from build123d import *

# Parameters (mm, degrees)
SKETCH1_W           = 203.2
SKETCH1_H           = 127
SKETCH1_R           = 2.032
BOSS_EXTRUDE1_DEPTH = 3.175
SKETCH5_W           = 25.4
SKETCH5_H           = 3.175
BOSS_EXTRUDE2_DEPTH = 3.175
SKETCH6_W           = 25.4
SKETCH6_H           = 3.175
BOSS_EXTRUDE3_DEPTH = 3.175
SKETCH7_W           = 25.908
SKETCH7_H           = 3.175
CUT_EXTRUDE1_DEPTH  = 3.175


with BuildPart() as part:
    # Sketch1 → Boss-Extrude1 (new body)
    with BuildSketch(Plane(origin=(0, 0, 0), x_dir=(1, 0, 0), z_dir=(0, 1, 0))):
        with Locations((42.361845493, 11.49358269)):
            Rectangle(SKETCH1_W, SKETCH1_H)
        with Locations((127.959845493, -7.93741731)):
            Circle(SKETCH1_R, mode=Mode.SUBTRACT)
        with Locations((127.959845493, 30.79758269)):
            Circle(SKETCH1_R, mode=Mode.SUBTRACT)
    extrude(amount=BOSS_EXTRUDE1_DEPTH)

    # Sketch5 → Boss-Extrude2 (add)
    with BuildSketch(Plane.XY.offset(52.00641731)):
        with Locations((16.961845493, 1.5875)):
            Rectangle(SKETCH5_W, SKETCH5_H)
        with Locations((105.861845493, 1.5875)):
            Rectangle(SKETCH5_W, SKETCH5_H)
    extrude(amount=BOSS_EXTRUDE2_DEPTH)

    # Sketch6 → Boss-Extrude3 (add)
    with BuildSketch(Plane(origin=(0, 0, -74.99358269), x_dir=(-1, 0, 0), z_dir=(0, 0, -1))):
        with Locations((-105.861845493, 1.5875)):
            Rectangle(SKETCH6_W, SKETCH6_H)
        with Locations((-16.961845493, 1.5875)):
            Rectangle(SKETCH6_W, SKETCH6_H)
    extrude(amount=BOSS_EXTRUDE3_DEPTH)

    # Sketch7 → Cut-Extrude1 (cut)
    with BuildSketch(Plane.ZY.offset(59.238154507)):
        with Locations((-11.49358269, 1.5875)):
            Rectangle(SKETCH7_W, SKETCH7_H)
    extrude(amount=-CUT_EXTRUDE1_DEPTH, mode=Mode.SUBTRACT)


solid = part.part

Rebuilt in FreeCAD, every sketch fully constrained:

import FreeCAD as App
import Part
import Sketcher

V = App.Vector
Q = App.Units.Quantity


def add_polygon(sketch, points):
    """Adds a closed chain of lines whose ends are joined by coincident constraints."""
    first, n = sketch.GeometryCount, len(points)
    for a, b in zip(points, points[1:] + points[:1]):
        sketch.addGeometry(Part.LineSegment(App.Vector(*a, 0), App.Vector(*b, 0)), False)
    for i in range(n):
        sketch.addConstraint(Sketcher.Constraint("Coincident", first + i, 2, first + (i + 1) % n, 1))

doc = App.newDocument("Part")
body = doc.addObject("PartDesign::Body", "Body")

# Sketch on XZ plane
sketch1 = body.newObject("Sketcher::SketchObject", "Sketch")
sketch1.AttachmentSupport = (doc.getObject("XZ_Plane"), [""])
sketch1.MapMode = "FlatFace"
add_polygon(sketch1, [(-59.2, -75), (-59.2, 52), (144, 52), (144, -75)])  # lines 0-3
sketch1.addGeometry(Part.Circle(V(128, 7.9, 0), V(0, 0, 1), 2), False)  # 4
sketch1.addGeometry(Part.Circle(V(128, -30.8, 0), V(0, 0, 1), 2), False)  # 5
sketch1.addConstraint(Sketcher.Constraint("Vertical", 0))
sketch1.addConstraint(Sketcher.Constraint("Horizontal", 1))
sketch1.addConstraint(Sketcher.Constraint("Vertical", 2))
sketch1.addConstraint(Sketcher.Constraint("Horizontal", 3))
sketch1.addConstraint(Sketcher.Constraint("Equal", 4, 5))
sketch1.addConstraint(Sketcher.Constraint("Vertical", 4, 3, 5, 3))
sketch1.addConstraint(Sketcher.Constraint("Diameter", 4, Q("0.16 in")))
sketch1.addConstraint(Sketcher.Constraint("DistanceX", 1, 1, 1, 2, Q("8 in")))
sketch1.addConstraint(Sketcher.Constraint("DistanceY", 0, 1, 0, 2, Q("5 in")))
sketch1.addConstraint(Sketcher.Constraint("DistanceX", 0, 2, 4, 3, Q("7.37 in")))
sketch1.addConstraint(Sketcher.Constraint("DistanceY", 5, 3, 0, 2, Q("3.26 in")))
sketch1.addConstraint(Sketcher.Constraint("DistanceY", 5, 3, 4, 3, Q("1.525 in")))
sketch1.addConstraint(Sketcher.Constraint("DistanceX", -1, 1, 4, 3, 127.959845))
sketch1.addConstraint(Sketcher.Constraint("DistanceY", -1, 1, 4, 3, 7.937417))
pad1 = body.newObject("PartDesign::Pad", "Pad")
pad1.Profile = sketch1
pad1.Length = Q("0.125 in")
pad1.Reversed = True

# Sketch on XY plane
sketch2 = body.newObject("Sketcher::SketchObject", "Sketch001")
sketch2.AttachmentSupport = (doc.getObject("XY_Plane"), [""])
sketch2.MapMode = "FlatFace"
sketch2.AttachmentOffset = App.Placement(V(0, 0, 52.006417), App.Rotation())
add_polygon(sketch2, [(4.3, 3.2), (4.3, 0), (29.7, 0), (29.7, 3.2)])  # lines 0-3
add_polygon(sketch2, [(93.2, 3.2), (93.2, 0), (118.6, 0), (118.6, 3.2)])  # lines 4-7
sketch2.addConstraint(Sketcher.Constraint("Vertical", 0))
sketch2.addConstraint(Sketcher.Constraint("Horizontal", 1))
sketch2.addConstraint(Sketcher.Constraint("Vertical", 2))
sketch2.addConstraint(Sketcher.Constraint("Horizontal", 3))
sketch2.addConstraint(Sketcher.Constraint("Vertical", 4))
sketch2.addConstraint(Sketcher.Constraint("Horizontal", 5))
sketch2.addConstraint(Sketcher.Constraint("Vertical", 6))
sketch2.addConstraint(Sketcher.Constraint("Horizontal", 7))
sketch2.addConstraint(Sketcher.Constraint("PointOnObject", 0, 2, -1))
sketch2.addConstraint(Sketcher.Constraint("PointOnObject", 4, 2, -1))
sketch2.addConstraint(Sketcher.Constraint("Horizontal", 3, 2, 6, 2))
sketch2.addConstraint(Sketcher.Constraint("Equal", 3, 5))
sketch2.addConstraint(Sketcher.Constraint("DistanceX", 1, 1, 1, 2, Q("1 in")))
sketch2.addConstraint(Sketcher.Constraint("DistanceX", 1, 2, 4, 2, Q("2.5 in")))
sketch2.addConstraint(Sketcher.Constraint("DistanceY", 0, 2, 0, 1, Q("0.125 in")))
sketch2.addConstraint(Sketcher.Constraint("DistanceX", -1, 1, 0, 2, 4.261845))
pad2 = body.newObject("PartDesign::Pad", "Pad001")
pad2.Profile = sketch2
pad2.Length = Q("0.125 in")

# Sketch on XY plane
sketch3 = body.newObject("Sketcher::SketchObject", "Sketch002")
sketch3.AttachmentSupport = (doc.getObject("XY_Plane"), [""])
sketch3.MapMode = "FlatFace"
sketch3.AttachmentOffset = App.Placement(V(0, 0, -74.993583), App.Rotation())
add_polygon(sketch3, [(118.6, 3.2), (118.6, 0), (93.2, 0), (93.2, 3.2)])  # lines 0-3
add_polygon(sketch3, [(29.7, 3.2), (29.7, 0), (4.3, 0), (4.3, 3.2)])  # lines 4-7
sketch3.addConstraint(Sketcher.Constraint("Vertical", 0))
sketch3.addConstraint(Sketcher.Constraint("Horizontal", 1))
sketch3.addConstraint(Sketcher.Constraint("Vertical", 2))
sketch3.addConstraint(Sketcher.Constraint("Horizontal", 3))
sketch3.addConstraint(Sketcher.Constraint("Vertical", 4))
sketch3.addConstraint(Sketcher.Constraint("Horizontal", 5))
sketch3.addConstraint(Sketcher.Constraint("Vertical", 6))
sketch3.addConstraint(Sketcher.Constraint("Horizontal", 7))
sketch3.addConstraint(Sketcher.Constraint("PointOnObject", 0, 2, -1))
sketch3.addConstraint(Sketcher.Constraint("PointOnObject", 4, 2, -1))
sketch3.addConstraint(Sketcher.Constraint("Horizontal", 3, 2, 6, 2))
sketch3.addConstraint(Sketcher.Constraint("Equal", 3, 5))
sketch3.addConstraint(Sketcher.Constraint("DistanceX", 1, 2, 1, 1, Q("1 in")))
sketch3.addConstraint(Sketcher.Constraint("DistanceX", 4, 2, 1, 2, Q("2.5 in")))
sketch3.addConstraint(Sketcher.Constraint("DistanceY", 0, 2, 0, 1, Q("0.125 in")))
sketch3.addConstraint(Sketcher.Constraint("DistanceX", -1, 1, 0, 2, 118.561845))
pad3 = body.newObject("PartDesign::Pad", "Pad002")
pad3.Profile = sketch3
pad3.Length = Q("0.125 in")
pad3.Reversed = True

# Sketch on YZ plane
sketch4 = body.newObject("Sketcher::SketchObject", "Sketch003")
sketch4.AttachmentSupport = (doc.getObject("YZ_Plane"), [""])
sketch4.MapMode = "FlatFace"
sketch4.AttachmentOffset = App.Placement(V(0, 0, -59.238155), App.Rotation())
add_polygon(sketch4, [(3.2, -24.4), (0, -24.4), (0, 1.5), (3.2, 1.5)])  # lines 0-3
sketch4.addConstraint(Sketcher.Constraint("Horizontal", 0))
sketch4.addConstraint(Sketcher.Constraint("Vertical", 1))
sketch4.addConstraint(Sketcher.Constraint("Horizontal", 2))
sketch4.addConstraint(Sketcher.Constraint("Vertical", 3))
sketch4.addConstraint(Sketcher.Constraint("PointOnObject", 0, 2, -2))
sketch4.addConstraint(Sketcher.Constraint("DistanceY", 1, 1, 1, 2, Q("1.02 in")))
sketch4.addConstraint(Sketcher.Constraint("DistanceX", 0, 2, 0, 1, Q("0.125 in")))
sketch4.addConstraint(Sketcher.Constraint("DistanceY", 0, 2, -1, 1, 24.447583))
pocket1 = body.newObject("PartDesign::Pocket", "Pocket")
pocket1.Profile = sketch4
pocket1.Length = Q("0.125 in")
pocket1.Reversed = True

doc.recompute()
